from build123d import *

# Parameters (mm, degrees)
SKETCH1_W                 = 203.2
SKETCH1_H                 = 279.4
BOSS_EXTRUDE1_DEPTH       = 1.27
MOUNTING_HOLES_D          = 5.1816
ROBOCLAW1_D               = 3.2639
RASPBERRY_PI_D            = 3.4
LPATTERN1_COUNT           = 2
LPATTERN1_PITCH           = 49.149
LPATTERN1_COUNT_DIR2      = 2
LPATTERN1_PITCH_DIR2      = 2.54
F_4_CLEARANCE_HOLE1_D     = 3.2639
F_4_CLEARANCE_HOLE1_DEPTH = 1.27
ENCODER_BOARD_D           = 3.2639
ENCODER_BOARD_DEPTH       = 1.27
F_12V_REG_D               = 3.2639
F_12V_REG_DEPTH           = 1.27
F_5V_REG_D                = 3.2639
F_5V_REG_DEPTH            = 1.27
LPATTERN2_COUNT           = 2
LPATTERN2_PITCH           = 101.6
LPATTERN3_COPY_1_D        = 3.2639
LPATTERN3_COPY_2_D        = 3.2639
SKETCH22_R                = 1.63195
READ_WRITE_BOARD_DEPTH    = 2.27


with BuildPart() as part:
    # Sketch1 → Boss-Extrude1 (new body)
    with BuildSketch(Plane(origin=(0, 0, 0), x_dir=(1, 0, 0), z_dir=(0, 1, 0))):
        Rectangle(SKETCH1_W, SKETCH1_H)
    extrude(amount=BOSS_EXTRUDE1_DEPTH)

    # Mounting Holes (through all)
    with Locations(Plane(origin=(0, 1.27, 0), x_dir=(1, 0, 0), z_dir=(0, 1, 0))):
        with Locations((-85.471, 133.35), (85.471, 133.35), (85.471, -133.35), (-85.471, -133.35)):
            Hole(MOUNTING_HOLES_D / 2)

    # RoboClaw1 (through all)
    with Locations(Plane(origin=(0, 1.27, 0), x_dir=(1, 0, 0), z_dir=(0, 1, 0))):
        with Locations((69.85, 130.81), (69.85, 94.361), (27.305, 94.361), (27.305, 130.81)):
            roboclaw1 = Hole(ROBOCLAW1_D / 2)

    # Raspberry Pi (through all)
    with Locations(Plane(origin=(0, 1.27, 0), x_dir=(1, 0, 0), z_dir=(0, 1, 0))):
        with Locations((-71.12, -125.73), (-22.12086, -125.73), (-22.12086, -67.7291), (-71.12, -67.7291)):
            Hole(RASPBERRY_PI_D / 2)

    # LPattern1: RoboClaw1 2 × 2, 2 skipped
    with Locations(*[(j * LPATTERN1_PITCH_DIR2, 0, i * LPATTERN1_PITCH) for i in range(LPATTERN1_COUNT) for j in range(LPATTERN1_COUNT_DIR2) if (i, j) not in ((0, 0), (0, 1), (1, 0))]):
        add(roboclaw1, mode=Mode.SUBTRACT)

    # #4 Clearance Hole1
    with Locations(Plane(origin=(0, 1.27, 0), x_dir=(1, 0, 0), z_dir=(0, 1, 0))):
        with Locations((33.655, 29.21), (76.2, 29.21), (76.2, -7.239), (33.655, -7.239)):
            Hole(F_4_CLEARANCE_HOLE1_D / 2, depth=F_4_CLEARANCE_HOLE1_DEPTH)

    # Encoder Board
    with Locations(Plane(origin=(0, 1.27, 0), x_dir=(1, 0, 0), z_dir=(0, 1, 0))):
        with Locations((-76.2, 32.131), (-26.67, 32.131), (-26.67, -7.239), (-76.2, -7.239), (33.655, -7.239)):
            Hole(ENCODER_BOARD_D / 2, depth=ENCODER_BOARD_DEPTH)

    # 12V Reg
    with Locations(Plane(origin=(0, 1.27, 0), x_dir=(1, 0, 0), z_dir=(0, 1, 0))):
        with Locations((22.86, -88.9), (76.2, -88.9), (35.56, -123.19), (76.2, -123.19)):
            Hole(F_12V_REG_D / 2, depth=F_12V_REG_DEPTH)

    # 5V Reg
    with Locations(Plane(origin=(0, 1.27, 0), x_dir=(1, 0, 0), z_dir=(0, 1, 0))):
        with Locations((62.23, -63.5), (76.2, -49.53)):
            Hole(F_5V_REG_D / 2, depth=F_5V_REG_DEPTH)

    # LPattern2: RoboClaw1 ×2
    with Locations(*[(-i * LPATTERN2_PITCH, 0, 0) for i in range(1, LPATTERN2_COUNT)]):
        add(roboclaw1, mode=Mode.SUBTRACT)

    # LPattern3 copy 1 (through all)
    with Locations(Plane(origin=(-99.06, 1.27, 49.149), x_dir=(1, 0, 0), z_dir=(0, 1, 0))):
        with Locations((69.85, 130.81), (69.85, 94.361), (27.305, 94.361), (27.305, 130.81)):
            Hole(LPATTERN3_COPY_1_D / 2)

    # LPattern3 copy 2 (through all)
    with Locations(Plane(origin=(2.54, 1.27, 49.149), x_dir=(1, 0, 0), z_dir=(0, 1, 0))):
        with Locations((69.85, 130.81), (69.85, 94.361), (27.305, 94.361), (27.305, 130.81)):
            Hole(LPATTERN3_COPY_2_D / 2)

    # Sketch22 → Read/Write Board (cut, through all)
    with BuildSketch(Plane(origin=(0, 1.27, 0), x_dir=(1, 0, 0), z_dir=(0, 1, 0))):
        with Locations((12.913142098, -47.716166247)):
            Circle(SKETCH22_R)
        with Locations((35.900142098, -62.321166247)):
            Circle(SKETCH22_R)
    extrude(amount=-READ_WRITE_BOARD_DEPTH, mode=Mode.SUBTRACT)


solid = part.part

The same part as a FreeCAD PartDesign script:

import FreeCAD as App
import Part
import Sketcher
Q = App.Units.Quantity

doc = App.newDocument("Part")
body = doc.addObject("PartDesign::Body", "Body")

# Sketch on XZ plane
sketch1 = body.newObject("Sketcher::SketchObject", "Sketch")
sketch1.AttachmentSupport = (doc.getObject("XZ_Plane"), [""])
sketch1.MapMode = "FlatFace"
sketch1.addGeometry([
    Part.LineSegment(App.Vector(-102, -140, 0), App.Vector(-102, 140, 0)),
    Part.LineSegment(App.Vector(-102, 140, 0), App.Vector(102, 140, 0)),
    Part.LineSegment(App.Vector(102, 140, 0), App.Vector(102, -140, 0)),
    Part.LineSegment(App.Vector(102, -140, 0), App.Vector(-102, -140, 0)),
], False)
sketch1.addConstraint([
    Sketcher.Constraint("Coincident", 0, 2, 1, 1),
    Sketcher.Constraint("Coincident", 1, 2, 2, 1),
    Sketcher.Constraint("Coincident", 2, 2, 3, 1),
    Sketcher.Constraint("Coincident", 3, 2, 0, 1),
    Sketcher.Constraint("Vertical", 0),
    Sketcher.Constraint("Horizontal", 1),
    Sketcher.Constraint("Vertical", 2),
    Sketcher.Constraint("Horizontal", 3),
    Sketcher.Constraint("Symmetric", 0, 2, 2, 2, -1, 1),
    Sketcher.Constraint("DistanceX", 1, 1, 1, 2, Q("8 in")),
    Sketcher.Constraint("DistanceY", 0, 1, 0, 2, Q("11 in")),
])
pad1 = body.newObject("PartDesign::Pad", "Pad")
pad1.Profile = sketch1
pad1.Length = Q("0.05 in")
pad1.Reversed = True

# Sketch on XZ plane
sketch2 = body.newObject("Sketcher::SketchObject", "Sketch001")
sketch2.AttachmentSupport = (doc.getObject("XZ_Plane"), [""])
sketch2.MapMode = "FlatFace"
sketch2.AttachmentOffset = App.Placement(App.Vector(0, 0, -0.05 * 25.4), App.Rotation())
sketch2.addGeometry([
    Part.Circle(App.Vector(-85.5, -133.3, 0), App.Vector(0, 0, 1), 2.6),
    Part.Circle(App.Vector(85.5, -133.3, 0), App.Vector(0, 0, 1), 2.6),
    Part.Circle(App.Vector(85.5, 133.3, 0), App.Vector(0, 0, 1), 2.6),
    Part.Circle(App.Vector(-85.5, 133.3, 0), App.Vector(0, 0, 1), 2.6),
], False)
sketch2.addConstraint([
    Sketcher.Constraint("Equal", 0, 1),
    Sketcher.Constraint("Equal", 1, 2),
    Sketcher.Constraint("Equal", 2, 3),
    Sketcher.Constraint("Symmetric", 0, 3, 2, 3, -1, 1),
    Sketcher.Constraint("Symmetric", 1, 3, 3, 3, -1, 1),
    Sketcher.Constraint("Symmetric", 0, 3, 1, 3, -2),
    Sketcher.Constraint("Diameter", 0, Q("0.204 in")),
    Sketcher.Constraint("DistanceY", 1, 3, 2, 3, Q("10.5 in")),
    Sketcher.Constraint("DistanceX", 0, 3, 1, 3, Q("6.73 in")),
])
doc.recompute()
hole = body.newObject("PartDesign::Hole", "Hole")
hole.Profile = sketch2
hole.ThreadType = "None"
hole.Diameter = Q("0.204 in")
hole.DepthType = "ThroughAll"
hole.Reversed = True

# Sketch on XZ plane
sketch3 = body.newObject("Sketcher::SketchObject", "Sketch002")
sketch3.AttachmentSupport = (doc.getObject("XZ_Plane"), [""])
sketch3.MapMode = "FlatFace"
sketch3.AttachmentOffset = App.Placement(App.Vector(0, 0, -0.05 * 25.4), App.Rotation())
sketch3.addGeometry([
    Part.Circle(App.Vector(69.8, -130.8, 0), App.Vector(0, 0, 1), 1.6),
    Part.Circle(App.Vector(69.8, -94.4, 0), App.Vector(0, 0, 1), 1.6),
    Part.Circle(App.Vector(27.3, -94.4, 0), App.Vector(0, 0, 1), 1.6),
    Part.Circle(App.Vector(27.3, -130.8, 0), App.Vector(0, 0, 1), 1.6),
], False)
sketch3.addConstraint([
    Sketcher.Constraint("Equal", 0, 1),
    Sketcher.Constraint("Equal", 1, 2),
    Sketcher.Constraint("Equal", 2, 3),
    Sketcher.Constraint("Horizontal", 1, 3, 2, 3),
    Sketcher.Constraint("Horizontal", 0, 3, 3, 3),
    Sketcher.Constraint("Vertical", 0, 3, 1, 3),
    Sketcher.Constraint("Vertical", 2, 3, 3, 3),
    Sketcher.Constraint("Diameter", 0, Q("0.1285 in")),
    Sketcher.Constraint("DistanceX", -1, 1, 0, 3, Q("2.75 in")),
    Sketcher.Constraint("DistanceY", 0, 3, -1, 1, Q("5.15 in")),
    Sketcher.Constraint("DistanceY", 1, 3, -1, 1, Q("3.715 in")),
    Sketcher.Constraint("DistanceX", -1, 1, 2, 3, Q("1.075 in")),
])
doc.recompute()
hole2 = body.newObject("PartDesign::Hole", "Hole001")
hole2.Profile = sketch3
hole2.ThreadType = "None"
hole2.Diameter = Q("0.1285 in")
hole2.DepthType = "ThroughAll"
hole2.Reversed = True

# Sketch on XZ plane
sketch4 = body.newObject("Sketcher::SketchObject", "Sketch003")
sketch4.AttachmentSupport = (doc.getObject("XZ_Plane"), [""])
sketch4.MapMode = "FlatFace"
sketch4.AttachmentOffset = App.Placement(App.Vector(0, 0, -0.05 * 25.4), App.Rotation())
sketch4.addGeometry([
    Part.Circle(App.Vector(-71.1, 125.7, 0), App.Vector(0, 0, 1), 1.7),
    Part.Circle(App.Vector(-22.1, 125.7, 0), App.Vector(0, 0, 1), 1.7),
    Part.Circle(App.Vector(-22.1, 67.7, 0), App.Vector(0, 0, 1), 1.7),
    Part.Circle(App.Vector(-71.1, 67.7, 0), App.Vector(0, 0, 1), 1.7),
], False)
sketch4.addConstraint([
    Sketcher.Constraint("Equal", 0, 1),
    Sketcher.Constraint("Equal", 1, 2),
    Sketcher.Constraint("Equal", 2, 3),
    Sketcher.Constraint("Horizontal", 0, 3, 1, 3),
    Sketcher.Constraint("Horizontal", 2, 3, 3, 3),
    Sketcher.Constraint("Vertical", 1, 3, 2, 3),
    Sketcher.Constraint("Vertical", 0, 3, 3, 3),
    Sketcher.Constraint("DistanceX", 0, 3, -1, 1, Q("2.8 in")),
    Sketcher.Constraint("Diameter", 0, 3.4),
    Sketcher.Constraint("DistanceY", -1, 1, 0, 3, Q("4.95 in")),
    Sketcher.Constraint("DistanceX", 1, 3, -1, 1, Q("0.8709 in")),
    Sketcher.Constraint("DistanceY", -1, 1, 2, 3, Q("2.6665 in")),
])
doc.recompute()
hole3 = body.newObject("PartDesign::Hole", "Hole002")
hole3.Profile = sketch4
hole3.ThreadType = "None"
hole3.Diameter = 3.4
hole3.DepthType = "ThroughAll"
hole3.Reversed = True
doc.recompute()

datumline = body.newObject("PartDesign::Line", "DatumLine")
datumline.Placement = App.Placement(App.Vector(0, 0, 0), App.Rotation(App.Vector(0, 0, 1), App.Vector(0.051610712, 0, 0.998667279)))
linearpattern = body.newObject("PartDesign::LinearPattern", "LinearPattern")
linearpattern.Originals = [hole2]
linearpattern.Direction = (datumline, [""])
linearpattern.Mode = "offset"
linearpattern.Offset = 49.214589
linearpattern.Occurrences = 2
body.Tip = linearpattern

# Sketch on XZ plane
sketch5 = body.newObject("Sketcher::SketchObject", "Sketch004")
sketch5.AttachmentSupport = (doc.getObject("XZ_Plane"), [""])
sketch5.MapMode = "FlatFace"
sketch5.AttachmentOffset = App.Placement(App.Vector(0, 0, -0.05 * 25.4), App.Rotation())
sketch5.addGeometry([
    Part.Circle(App.Vector(33.7, -29.2, 0), App.Vector(0, 0, 1), 1.6),
    Part.Circle(App.Vector(76.2, -29.2, 0), App.Vector(0, 0, 1), 1.6),
    Part.Circle(App.Vector(76.2, 7.2, 0), App.Vector(0, 0, 1), 1.6),
    Part.Circle(App.Vector(33.7, 7.2, 0), App.Vector(0, 0, 1), 1.6),
], False)
sketch5.addConstraint([
    Sketcher.Constraint("Equal", 0, 1),
    Sketcher.Constraint("Equal", 1, 2),
    Sketcher.Constraint("Equal", 2, 3),
    Sketcher.Constraint("Horizontal", 0, 3, 1, 3),
    Sketcher.Constraint("Horizontal", 2, 3, 3, 3),
    Sketcher.Constraint("Vertical", 1, 3, 2, 3),
    Sketcher.Constraint("Vertical", 0, 3, 3, 3),
    Sketcher.Constraint("DistanceX", -1, 1, 1, 3, Q("3 in")),
    Sketcher.Constraint("Diameter", 0, Q("0.1285 in")),
    Sketcher.Constraint("DistanceY", 0, 3, -1, 1, Q("1.15 in")),
    Sketcher.Constraint("DistanceX", -1, 1, 0, 3, Q("1.325 in")),
    Sketcher.Constraint("DistanceY", -1, 1, 2, 3, Q("0.285 in")),
])
doc.recompute()
hole4 = body.newObject("PartDesign::Hole", "Hole003")
hole4.Profile = sketch5
hole4.ThreadType = "None"
hole4.Diameter = Q("0.1285 in")
hole4.DepthType = "Dimension"
hole4.Depth = Q("0.05 in")
hole4.DrillPoint = "Flat"
hole4.Reversed = True

# Sketch on XZ plane
sketch6 = body.newObject("Sketcher::SketchObject", "Sketch005")
sketch6.AttachmentSupport = (doc.getObject("XZ_Plane"), [""])
sketch6.MapMode = "FlatFace"
sketch6.AttachmentOffset = App.Placement(App.Vector(0, 0, -0.05 * 25.4), App.Rotation())
sketch6.addGeometry([
    Part.Circle(App.Vector(-76.2, -32.1, 0), App.Vector(0, 0, 1), 1.6),  # 0
    Part.Circle(App.Vector(-26.7, -32.1, 0), App.Vector(0, 0, 1), 1.6),  # 1
    Part.Circle(App.Vector(-26.7, 7.2, 0), App.Vector(0, 0, 1), 1.6),  # 2
    Part.Circle(App.Vector(-76.2, 7.2, 0), App.Vector(0, 0, 1), 1.6),  # 3
    Part.Circle(App.Vector(33.7, 7.2, 0), App.Vector(0, 0, 1), 1.6),  # 4
], False)
sketch6.addConstraint([
    Sketcher.Constraint("Equal", 0, 1),
    Sketcher.Constraint("Equal", 1, 2),
    Sketcher.Constraint("Equal", 2, 3),
    Sketcher.Constraint("Equal", 3, 4),
    Sketcher.Constraint("Horizontal", 0, 3, 1, 3),
    Sketcher.Constraint("Horizontal", 2, 3, 3, 3),
    Sketcher.Constraint("Horizontal", 3, 3, 4, 3),
    Sketcher.Constraint("Vertical", 1, 3, 2, 3),
    Sketcher.Constraint("Vertical", 0, 3, 3, 3),
    Sketcher.Constraint("DistanceX", 0, 3, -1, 1, Q("3 in")),
    Sketcher.Constraint("Diameter", 0, Q("0.1285 in")),
    Sketcher.Constraint("DistanceX", 1, 3, -1, 1, Q("1.05 in")),
    Sketcher.Constraint("DistanceY", 1, 3, 2, 3, Q("1.55 in")),
    Sketcher.Constraint("DistanceY", 0, 3, -1, 1, Q("1.265 in")),
    Sketcher.Constraint("DistanceX", -1, 1, 4, 3, Q("1.325 in")),
])
doc.recompute()
hole5 = body.newObject("PartDesign::Hole", "Hole004")
hole5.Profile = sketch6
hole5.ThreadType = "None"
hole5.Diameter = Q("0.1285 in")
hole5.DepthType = "Dimension"
hole5.Depth = Q("0.05 in")
hole5.DrillPoint = "Flat"
hole5.Reversed = True

# Sketch on XZ plane
sketch7 = body.newObject("Sketcher::SketchObject", "Sketch006")
sketch7.AttachmentSupport = (doc.getObject("XZ_Plane"), [""])
sketch7.MapMode = "FlatFace"
sketch7.AttachmentOffset = App.Placement(App.Vector(0, 0, -0.05 * 25.4), App.Rotation())
sketch7.addGeometry([
    Part.Circle(App.Vector(22.9, 88.9, 0), App.Vector(0, 0, 1), 1.6),
    Part.Circle(App.Vector(76.2, 88.9, 0), App.Vector(0, 0, 1), 1.6),
    Part.Circle(App.Vector(35.6, 123.2, 0), App.Vector(0, 0, 1), 1.6),
    Part.Circle(App.Vector(76.2, 123.2, 0), App.Vector(0, 0, 1), 1.6),
], False)
sketch7.addConstraint([
    Sketcher.Constraint("Equal", 0, 1),
    Sketcher.Constraint("Equal", 1, 2),
    Sketcher.Constraint("Equal", 2, 3),
    Sketcher.Constraint("Horizontal", 0, 3, 1, 3),
    Sketcher.Constraint("Horizontal", 2, 3, 3, 3),
    Sketcher.Constraint("Vertical", 1, 3, 3, 3),
    Sketcher.Constraint("DistanceX", -1, 1, 1, 3, Q("3 in")),
    Sketcher.Constraint("Diameter", 0, Q("0.1285 in")),
    Sketcher.Constraint("DistanceX", -1, 1, 0, 3, Q("0.9 in")),
    Sketcher.Constraint("DistanceY", -1, 1, 0, 3, Q("3.5 in")),
    Sketcher.Constraint("DistanceX", -1, 1, 2, 3, Q("1.4 in")),
    Sketcher.Constraint("DistanceY", -1, 1, 2, 3, Q("4.85 in")),
])
doc.recompute()
hole6 = body.newObject("PartDesign::Hole", "Hole005")
hole6.Profile = sketch7
hole6.ThreadType = "None"
hole6.Diameter = Q("0.1285 in")
hole6.DepthType = "Dimension"
hole6.Depth = Q("0.05 in")
hole6.DrillPoint = "Flat"
hole6.Reversed = True

# Sketch on XZ plane
sketch8 = body.newObject("Sketcher::SketchObject", "Sketch007")
sketch8.AttachmentSupport = (doc.getObject("XZ_Plane"), [""])
sketch8.MapMode = "FlatFace"
sketch8.AttachmentOffset = App.Placement(App.Vector(0, 0, -0.05 * 25.4), App.Rotation())
sketch8.addGeometry([
    Part.Circle(App.Vector(62.2, 63.5, 0), App.Vector(0, 0, 1), 1.6),
    Part.Circle(App.Vector(76.2, 49.5, 0), App.Vector(0, 0, 1), 1.6),
], False)
sketch8.addConstraint([
    Sketcher.Constraint("Equal", 0, 1),
    Sketcher.Constraint("DistanceX", -1, 1, 1, 3, Q("3 in")),
    Sketcher.Constraint("Diameter", 0, Q("0.1285 in")),
    Sketcher.Constraint("DistanceY", -1, 1, 0, 3, Q("2.5 in")),
    Sketcher.Constraint("DistanceX", -1, 1, 0, 3, Q("2.45 in")),
    Sketcher.Constraint("DistanceY", -1, 1, 1, 3, Q("1.95 in")),
])
doc.recompute()
hole7 = body.newObject("PartDesign::Hole", "Hole006")
hole7.Profile = sketch8
hole7.ThreadType = "None"
hole7.Diameter = Q("0.1285 in")
hole7.DepthType = "Dimension"
hole7.Depth = Q("0.05 in")
hole7.DrillPoint = "Flat"
hole7.Reversed = True
doc.recompute()

linearpattern2 = body.newObject("PartDesign::LinearPattern", "LinearPattern001")
linearpattern2.Originals = [hole2]
linearpattern2.Direction = (doc.getObject("X_Axis"), [""])
linearpattern2.Mode = "offset"
linearpattern2.Offset = Q("4 in")
linearpattern2.Occurrences = 2
linearpattern2.Reversed = True
body.Tip = linearpattern2

# Sketch on XZ plane
sketch9 = body.newObject("Sketcher::SketchObject", "Sketch008")
sketch9.AttachmentSupport = (doc.getObject("XZ_Plane"), [""])
sketch9.MapMode = "FlatFace"
sketch9.AttachmentOffset = App.Placement(App.Vector(0, 0, -0.05 * 25.4), App.Rotation())
sketch9.addGeometry([
    Part.Circle(App.Vector(-29.2, -81.7, 0), App.Vector(0, 0, 1), 1.6),
    Part.Circle(App.Vector(-29.2, -45.2, 0), App.Vector(0, 0, 1), 1.6),
    Part.Circle(App.Vector(-71.8, -45.2, 0), App.Vector(0, 0, 1), 1.6),
    Part.Circle(App.Vector(-71.8, -81.7, 0), App.Vector(0, 0, 1), 1.6),
], False)
sketch9.addConstraint([
    Sketcher.Constraint("Equal", 0, 1),
    Sketcher.Constraint("Equal", 1, 2),
    Sketcher.Constraint("Equal", 2, 3),
    Sketcher.Constraint("Horizontal", 1, 3, 2, 3),
    Sketcher.Constraint("Horizontal", 0, 3, 3, 3),
    Sketcher.Constraint("Vertical", 0, 3, 1, 3),
    Sketcher.Constraint("Vertical", 2, 3, 3, 3),
    Sketcher.Constraint("Diameter", 0, Q("0.1285 in")),
    Sketcher.Constraint("DistanceX", 0, 3, -1, 1, Q("1.15 in")),
    Sketcher.Constraint("DistanceY", 1, 3, -1, 1, Q("1.78 in")),
    Sketcher.Constraint("DistanceY", 0, 3, -1, 1, Q("3.215 in")),
    Sketcher.Constraint("DistanceX", 2, 3, -1, 1, Q("2.825 in")),
])
doc.recompute()
hole8 = body.newObject("PartDesign::Hole", "Hole007")
hole8.Profile = sketch9
hole8.ThreadType = "None"
hole8.Diameter = Q("0.1285 in")
hole8.DepthType = "ThroughAll"
hole8.Reversed = True

# Sketch on XZ plane
sketch10 = body.newObject("Sketcher::SketchObject", "Sketch009")
sketch10.AttachmentSupport = (doc.getObject("XZ_Plane"), [""])
sketch10.MapMode = "FlatFace"
sketch10.AttachmentOffset = App.Placement(App.Vector(0, 0, -0.05 * 25.4), App.Rotation())
sketch10.addGeometry([
    Part.Circle(App.Vector(72.4, -81.7, 0), App.Vector(0, 0, 1), 1.6),
    Part.Circle(App.Vector(72.4, -45.2, 0), App.Vector(0, 0, 1), 1.6),
    Part.Circle(App.Vector(29.8, -45.2, 0), App.Vector(0, 0, 1), 1.6),
    Part.Circle(App.Vector(29.8, -81.7, 0), App.Vector(0, 0, 1), 1.6),
], False)
sketch10.addConstraint([
    Sketcher.Constraint("Equal", 0, 1),
    Sketcher.Constraint("Equal", 1, 2),
    Sketcher.Constraint("Equal", 2, 3),
    Sketcher.Constraint("Horizontal", 1, 3, 2, 3),
    Sketcher.Constraint("Horizontal", 0, 3, 3, 3),
    Sketcher.Constraint("Vertical", 0, 3, 1, 3),
    Sketcher.Constraint("Vertical", 2, 3, 3, 3),
    Sketcher.Constraint("Diameter", 0, Q("0.1285 in")),
    Sketcher.Constraint("DistanceX", -1, 1, 0, 3, Q("2.85 in")),
    Sketcher.Constraint("DistanceY", 1, 3, -1, 1, Q("1.78 in")),
    Sketcher.Constraint("DistanceY", 0, 3, -1, 1, Q("3.215 in")),
    Sketcher.Constraint("DistanceX", -1, 1, 2, 3, Q("1.175 in")),
])
doc.recompute()
hole9 = body.newObject("PartDesign::Hole", "Hole008")
hole9.Profile = sketch10
hole9.ThreadType = "None"
hole9.Diameter = Q("0.1285 in")
hole9.DepthType = "ThroughAll"
hole9.Reversed = True

# Sketch on XZ plane
sketch11 = body.newObject("Sketcher::SketchObject", "Sketch010")
sketch11.AttachmentSupport = (doc.getObject("XZ_Plane"), [""])
sketch11.MapMode = "FlatFace"
sketch11.AttachmentOffset = App.Placement(App.Vector(0, 0, -0.05 * 25.4), App.Rotation())
sketch11.addGeometry([
    Part.Circle(App.Vector(12.9, 47.7, 0), App.Vector(0, 0, 1), 1.6),
    Part.Circle(App.Vector(35.9, 62.3, 0), App.Vector(0, 0, 1), 1.6),
], False)
sketch11.addConstraint([
    Sketcher.Constraint("Equal", 0, 1),
    Sketcher.Constraint("Diameter", 0, Q("0.1285 in")),
    Sketcher.Constraint("DistanceX", 0, 3, 1, 3, Q("0.905 in")),
    Sketcher.Constraint("DistanceY", 0, 3, 1, 3, Q("0.575 in")),
    Sketcher.Constraint("DistanceX", -1, 1, 0, 3, 12.913142),
    Sketcher.Constraint("DistanceY", -1, 1, 0, 3, 47.716166),
])
pocket1 = body.newObject("PartDesign::Pocket", "Pocket")
pocket1.Profile = sketch11
pocket1.Type = "ThroughAll"
pocket1.Reversed = True

doc.recompute()
